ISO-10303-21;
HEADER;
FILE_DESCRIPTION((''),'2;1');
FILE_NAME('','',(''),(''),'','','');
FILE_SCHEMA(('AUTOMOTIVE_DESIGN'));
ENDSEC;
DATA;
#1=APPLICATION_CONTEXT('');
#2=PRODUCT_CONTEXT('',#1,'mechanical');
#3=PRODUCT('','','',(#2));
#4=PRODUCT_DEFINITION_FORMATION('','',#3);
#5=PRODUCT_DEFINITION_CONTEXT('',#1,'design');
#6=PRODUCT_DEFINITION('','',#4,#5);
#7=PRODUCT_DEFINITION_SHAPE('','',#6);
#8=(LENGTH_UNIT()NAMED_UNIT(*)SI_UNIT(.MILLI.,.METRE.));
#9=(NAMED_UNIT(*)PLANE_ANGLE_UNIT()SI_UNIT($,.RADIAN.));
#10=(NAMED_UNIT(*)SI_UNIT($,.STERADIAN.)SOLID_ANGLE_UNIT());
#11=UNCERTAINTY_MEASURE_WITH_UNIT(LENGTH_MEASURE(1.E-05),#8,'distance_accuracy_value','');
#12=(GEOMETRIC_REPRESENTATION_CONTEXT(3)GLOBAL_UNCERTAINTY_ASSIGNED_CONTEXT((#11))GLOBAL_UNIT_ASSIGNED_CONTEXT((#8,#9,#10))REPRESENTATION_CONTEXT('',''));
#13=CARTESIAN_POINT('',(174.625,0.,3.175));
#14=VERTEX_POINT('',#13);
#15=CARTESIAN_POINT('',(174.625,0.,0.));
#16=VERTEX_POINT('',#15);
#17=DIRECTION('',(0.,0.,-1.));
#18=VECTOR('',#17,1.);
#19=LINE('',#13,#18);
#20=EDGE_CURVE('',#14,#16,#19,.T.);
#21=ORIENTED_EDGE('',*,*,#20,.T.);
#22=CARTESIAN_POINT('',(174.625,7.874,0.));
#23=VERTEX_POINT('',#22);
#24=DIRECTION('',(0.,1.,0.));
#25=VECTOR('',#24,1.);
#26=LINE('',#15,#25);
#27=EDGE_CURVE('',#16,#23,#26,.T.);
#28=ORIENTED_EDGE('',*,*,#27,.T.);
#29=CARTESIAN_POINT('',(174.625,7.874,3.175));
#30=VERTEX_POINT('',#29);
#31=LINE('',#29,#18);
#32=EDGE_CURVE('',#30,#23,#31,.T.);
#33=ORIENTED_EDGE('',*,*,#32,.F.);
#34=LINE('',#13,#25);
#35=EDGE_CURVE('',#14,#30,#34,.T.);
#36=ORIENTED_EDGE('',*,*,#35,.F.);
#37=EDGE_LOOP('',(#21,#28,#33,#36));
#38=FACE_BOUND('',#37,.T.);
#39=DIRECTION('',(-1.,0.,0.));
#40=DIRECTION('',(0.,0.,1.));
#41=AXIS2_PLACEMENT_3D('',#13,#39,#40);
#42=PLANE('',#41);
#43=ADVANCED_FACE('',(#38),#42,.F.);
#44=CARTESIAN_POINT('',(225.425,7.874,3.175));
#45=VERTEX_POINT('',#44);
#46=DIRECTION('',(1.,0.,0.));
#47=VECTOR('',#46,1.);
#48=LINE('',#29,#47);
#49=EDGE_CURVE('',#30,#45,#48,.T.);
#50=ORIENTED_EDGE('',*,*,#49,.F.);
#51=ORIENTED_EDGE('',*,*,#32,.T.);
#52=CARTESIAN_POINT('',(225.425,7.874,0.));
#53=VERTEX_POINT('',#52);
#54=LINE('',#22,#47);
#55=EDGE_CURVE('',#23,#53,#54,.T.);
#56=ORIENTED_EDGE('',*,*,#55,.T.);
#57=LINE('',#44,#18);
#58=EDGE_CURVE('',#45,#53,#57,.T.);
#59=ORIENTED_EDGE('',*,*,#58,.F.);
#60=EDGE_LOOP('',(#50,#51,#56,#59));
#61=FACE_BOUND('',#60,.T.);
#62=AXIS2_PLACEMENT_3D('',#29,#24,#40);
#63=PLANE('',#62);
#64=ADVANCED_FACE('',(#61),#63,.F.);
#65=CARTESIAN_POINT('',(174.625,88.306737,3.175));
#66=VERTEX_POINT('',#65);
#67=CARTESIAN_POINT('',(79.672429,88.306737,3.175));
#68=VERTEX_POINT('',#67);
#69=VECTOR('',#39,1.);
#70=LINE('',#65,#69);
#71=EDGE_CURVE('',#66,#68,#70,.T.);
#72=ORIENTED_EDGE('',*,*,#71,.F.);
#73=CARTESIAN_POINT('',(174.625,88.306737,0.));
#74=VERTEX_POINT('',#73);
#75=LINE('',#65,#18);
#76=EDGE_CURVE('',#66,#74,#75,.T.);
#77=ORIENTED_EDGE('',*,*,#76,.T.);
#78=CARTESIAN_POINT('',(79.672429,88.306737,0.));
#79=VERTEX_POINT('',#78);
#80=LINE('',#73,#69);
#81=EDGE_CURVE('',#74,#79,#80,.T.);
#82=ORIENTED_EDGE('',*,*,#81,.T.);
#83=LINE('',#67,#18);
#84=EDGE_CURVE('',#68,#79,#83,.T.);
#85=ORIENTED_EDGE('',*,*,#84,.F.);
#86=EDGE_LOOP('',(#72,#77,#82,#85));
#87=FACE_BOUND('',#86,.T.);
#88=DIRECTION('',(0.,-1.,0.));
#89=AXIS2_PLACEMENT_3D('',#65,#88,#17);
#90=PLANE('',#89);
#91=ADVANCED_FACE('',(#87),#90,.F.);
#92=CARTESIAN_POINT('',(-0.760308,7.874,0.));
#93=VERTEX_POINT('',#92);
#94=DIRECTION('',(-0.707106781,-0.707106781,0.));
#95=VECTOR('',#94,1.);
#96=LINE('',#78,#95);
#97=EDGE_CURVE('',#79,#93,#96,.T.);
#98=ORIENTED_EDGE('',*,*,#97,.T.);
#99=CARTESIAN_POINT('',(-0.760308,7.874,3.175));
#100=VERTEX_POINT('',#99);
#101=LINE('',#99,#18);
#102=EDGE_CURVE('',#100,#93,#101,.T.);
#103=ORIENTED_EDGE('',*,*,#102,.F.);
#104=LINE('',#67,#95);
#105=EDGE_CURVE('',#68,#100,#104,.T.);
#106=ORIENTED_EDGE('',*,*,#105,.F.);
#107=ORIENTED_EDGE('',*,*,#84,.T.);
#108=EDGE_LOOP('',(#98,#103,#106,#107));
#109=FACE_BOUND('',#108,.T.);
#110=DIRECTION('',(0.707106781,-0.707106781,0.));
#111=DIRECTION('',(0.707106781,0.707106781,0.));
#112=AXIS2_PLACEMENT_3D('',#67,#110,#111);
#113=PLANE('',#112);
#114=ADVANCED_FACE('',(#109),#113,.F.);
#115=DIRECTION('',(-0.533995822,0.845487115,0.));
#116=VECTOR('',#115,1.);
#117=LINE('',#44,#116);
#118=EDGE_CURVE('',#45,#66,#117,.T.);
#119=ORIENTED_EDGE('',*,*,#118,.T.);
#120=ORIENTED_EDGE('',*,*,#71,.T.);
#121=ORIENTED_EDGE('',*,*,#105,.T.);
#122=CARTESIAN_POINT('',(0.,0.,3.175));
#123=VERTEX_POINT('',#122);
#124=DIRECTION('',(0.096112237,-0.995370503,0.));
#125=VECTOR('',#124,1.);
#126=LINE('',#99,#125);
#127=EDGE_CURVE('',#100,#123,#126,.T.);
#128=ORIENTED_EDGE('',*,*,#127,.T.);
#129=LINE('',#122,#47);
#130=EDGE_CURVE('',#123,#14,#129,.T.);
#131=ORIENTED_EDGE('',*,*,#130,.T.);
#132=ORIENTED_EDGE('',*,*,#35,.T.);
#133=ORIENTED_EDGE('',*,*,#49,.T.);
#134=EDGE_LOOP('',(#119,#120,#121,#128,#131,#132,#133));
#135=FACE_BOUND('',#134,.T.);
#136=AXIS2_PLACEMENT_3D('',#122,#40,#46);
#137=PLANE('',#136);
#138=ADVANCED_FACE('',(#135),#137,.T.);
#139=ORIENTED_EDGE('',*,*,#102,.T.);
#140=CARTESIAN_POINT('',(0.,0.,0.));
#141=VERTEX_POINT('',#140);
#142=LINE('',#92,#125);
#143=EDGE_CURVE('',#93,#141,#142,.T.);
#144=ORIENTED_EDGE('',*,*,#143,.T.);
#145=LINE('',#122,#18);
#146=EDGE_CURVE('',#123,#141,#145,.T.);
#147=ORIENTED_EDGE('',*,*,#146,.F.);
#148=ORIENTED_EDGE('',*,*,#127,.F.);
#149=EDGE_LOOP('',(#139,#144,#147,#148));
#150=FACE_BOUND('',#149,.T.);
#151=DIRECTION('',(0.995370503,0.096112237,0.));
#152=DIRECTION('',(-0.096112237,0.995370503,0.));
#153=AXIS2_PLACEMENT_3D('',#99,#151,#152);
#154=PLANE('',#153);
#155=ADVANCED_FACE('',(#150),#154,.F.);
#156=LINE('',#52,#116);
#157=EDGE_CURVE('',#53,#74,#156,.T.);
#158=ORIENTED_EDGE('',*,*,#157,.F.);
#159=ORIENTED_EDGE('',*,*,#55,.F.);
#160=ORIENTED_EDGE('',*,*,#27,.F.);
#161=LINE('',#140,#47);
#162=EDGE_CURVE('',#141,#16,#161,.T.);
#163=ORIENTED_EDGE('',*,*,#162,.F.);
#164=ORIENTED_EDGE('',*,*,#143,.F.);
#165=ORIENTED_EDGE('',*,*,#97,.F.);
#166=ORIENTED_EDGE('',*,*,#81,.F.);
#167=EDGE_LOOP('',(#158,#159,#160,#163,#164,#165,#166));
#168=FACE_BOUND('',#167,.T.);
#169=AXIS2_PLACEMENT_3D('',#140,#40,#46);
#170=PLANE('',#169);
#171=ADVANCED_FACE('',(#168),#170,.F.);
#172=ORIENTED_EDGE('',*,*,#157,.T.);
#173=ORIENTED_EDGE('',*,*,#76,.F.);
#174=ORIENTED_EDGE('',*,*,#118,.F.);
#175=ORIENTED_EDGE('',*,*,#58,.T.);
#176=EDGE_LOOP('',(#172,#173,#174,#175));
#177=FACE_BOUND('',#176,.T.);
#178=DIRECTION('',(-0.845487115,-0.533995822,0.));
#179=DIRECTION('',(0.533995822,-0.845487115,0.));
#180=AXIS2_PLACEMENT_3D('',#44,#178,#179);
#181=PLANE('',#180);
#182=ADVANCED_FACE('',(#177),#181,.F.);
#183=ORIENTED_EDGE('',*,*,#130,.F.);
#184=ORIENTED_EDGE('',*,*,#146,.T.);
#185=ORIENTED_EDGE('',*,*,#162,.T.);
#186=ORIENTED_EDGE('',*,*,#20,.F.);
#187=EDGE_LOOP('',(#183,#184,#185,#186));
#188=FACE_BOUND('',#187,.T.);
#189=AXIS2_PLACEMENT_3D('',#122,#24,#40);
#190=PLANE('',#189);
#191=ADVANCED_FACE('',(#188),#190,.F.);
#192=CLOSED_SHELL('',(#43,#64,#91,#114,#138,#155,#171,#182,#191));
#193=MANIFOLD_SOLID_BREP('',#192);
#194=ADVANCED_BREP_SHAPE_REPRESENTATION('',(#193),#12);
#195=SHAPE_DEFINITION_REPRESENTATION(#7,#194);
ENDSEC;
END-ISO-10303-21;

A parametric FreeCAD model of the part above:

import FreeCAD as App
import Part
import Sketcher

V = App.Vector
Q = App.Units.Quantity

doc = App.newDocument("Part")
body = doc.addObject("PartDesign::Body", "Body")

# Sketch on XY plane
sketch1 = doc.addObject("Sketcher::SketchObject", "Sketch")
body.addObject(sketch1)
sketch1.AttachmentSupport = (doc.XY_Plane, [""])
sketch1.MapMode = "FlatFace"
sketch1.addGeometry([
    Part.LineSegment(V(0, 0, 0), V(175, 0, 0)),  # 0
    Part.LineSegment(V(175, 0, 0), V(175, 8, 0)),  # 1
    Part.LineSegment(V(175, 8, 0), V(225, 8, 0)),  # 2
    Part.LineSegment(V(225, 8, 0), V(175, 88, 0)),  # 3
    Part.LineSegment(V(175, 88, 0), V(80, 88, 0)),  # 4
    Part.LineSegment(V(80, 88, 0), V(-1, 8, 0)),  # 5
    Part.LineSegment(V(-1, 8, 0), V(0, 0, 0)),  # 6
], False)
sketch1.addConstraint([
    Sketcher.Constraint("Coincident", 0, 2, 1, 1),
    Sketcher.Constraint("Coincident", 1, 2, 2, 1),
    Sketcher.Constraint("Coincident", 2, 2, 3, 1),
    Sketcher.Constraint("Coincident", 3, 2, 4, 1),
    Sketcher.Constraint("Coincident", 4, 2, 5, 1),
    Sketcher.Constraint("Coincident", 5, 2, 6, 1),
    Sketcher.Constraint("Coincident", 6, 2, 0, 1),
    Sketcher.Constraint("Horizontal", 0),
    Sketcher.Constraint("Vertical", 1),
    Sketcher.Constraint("Horizontal", 2),
    Sketcher.Constraint("Horizontal", 4),
    Sketcher.Constraint("Coincident", 6, 2, -1, 1),
    Sketcher.Constraint("Horizontal", 2, 2, 5, 2),
    Sketcher.Constraint("Vertical", 1, 2, 3, 2),
    Sketcher.Constraint("DistanceX", 2, 1, 2, 2, Q("2 in")),
    Sketcher.Constraint("Angle", 5, Q("-135 deg")),
    Sketcher.Constraint("DistanceY", 1, 1, 1, 2, Q("0.31 in")),
    Sketcher.Constraint("DistanceX", 0, 1, 0, 2, Q("6.875 in")),
    Sketcher.Constraint("DistanceX", 4, 2, 4, 1, 94.952571),
    Sketcher.Constraint("Distance", 3, 95.13183),
])
pad1 = doc.addObject("PartDesign::Pad", "Pad")
body.addObject(pad1)
pad1.Profile = sketch1
pad1.Length = Q("0.125 in")

doc.recompute()
